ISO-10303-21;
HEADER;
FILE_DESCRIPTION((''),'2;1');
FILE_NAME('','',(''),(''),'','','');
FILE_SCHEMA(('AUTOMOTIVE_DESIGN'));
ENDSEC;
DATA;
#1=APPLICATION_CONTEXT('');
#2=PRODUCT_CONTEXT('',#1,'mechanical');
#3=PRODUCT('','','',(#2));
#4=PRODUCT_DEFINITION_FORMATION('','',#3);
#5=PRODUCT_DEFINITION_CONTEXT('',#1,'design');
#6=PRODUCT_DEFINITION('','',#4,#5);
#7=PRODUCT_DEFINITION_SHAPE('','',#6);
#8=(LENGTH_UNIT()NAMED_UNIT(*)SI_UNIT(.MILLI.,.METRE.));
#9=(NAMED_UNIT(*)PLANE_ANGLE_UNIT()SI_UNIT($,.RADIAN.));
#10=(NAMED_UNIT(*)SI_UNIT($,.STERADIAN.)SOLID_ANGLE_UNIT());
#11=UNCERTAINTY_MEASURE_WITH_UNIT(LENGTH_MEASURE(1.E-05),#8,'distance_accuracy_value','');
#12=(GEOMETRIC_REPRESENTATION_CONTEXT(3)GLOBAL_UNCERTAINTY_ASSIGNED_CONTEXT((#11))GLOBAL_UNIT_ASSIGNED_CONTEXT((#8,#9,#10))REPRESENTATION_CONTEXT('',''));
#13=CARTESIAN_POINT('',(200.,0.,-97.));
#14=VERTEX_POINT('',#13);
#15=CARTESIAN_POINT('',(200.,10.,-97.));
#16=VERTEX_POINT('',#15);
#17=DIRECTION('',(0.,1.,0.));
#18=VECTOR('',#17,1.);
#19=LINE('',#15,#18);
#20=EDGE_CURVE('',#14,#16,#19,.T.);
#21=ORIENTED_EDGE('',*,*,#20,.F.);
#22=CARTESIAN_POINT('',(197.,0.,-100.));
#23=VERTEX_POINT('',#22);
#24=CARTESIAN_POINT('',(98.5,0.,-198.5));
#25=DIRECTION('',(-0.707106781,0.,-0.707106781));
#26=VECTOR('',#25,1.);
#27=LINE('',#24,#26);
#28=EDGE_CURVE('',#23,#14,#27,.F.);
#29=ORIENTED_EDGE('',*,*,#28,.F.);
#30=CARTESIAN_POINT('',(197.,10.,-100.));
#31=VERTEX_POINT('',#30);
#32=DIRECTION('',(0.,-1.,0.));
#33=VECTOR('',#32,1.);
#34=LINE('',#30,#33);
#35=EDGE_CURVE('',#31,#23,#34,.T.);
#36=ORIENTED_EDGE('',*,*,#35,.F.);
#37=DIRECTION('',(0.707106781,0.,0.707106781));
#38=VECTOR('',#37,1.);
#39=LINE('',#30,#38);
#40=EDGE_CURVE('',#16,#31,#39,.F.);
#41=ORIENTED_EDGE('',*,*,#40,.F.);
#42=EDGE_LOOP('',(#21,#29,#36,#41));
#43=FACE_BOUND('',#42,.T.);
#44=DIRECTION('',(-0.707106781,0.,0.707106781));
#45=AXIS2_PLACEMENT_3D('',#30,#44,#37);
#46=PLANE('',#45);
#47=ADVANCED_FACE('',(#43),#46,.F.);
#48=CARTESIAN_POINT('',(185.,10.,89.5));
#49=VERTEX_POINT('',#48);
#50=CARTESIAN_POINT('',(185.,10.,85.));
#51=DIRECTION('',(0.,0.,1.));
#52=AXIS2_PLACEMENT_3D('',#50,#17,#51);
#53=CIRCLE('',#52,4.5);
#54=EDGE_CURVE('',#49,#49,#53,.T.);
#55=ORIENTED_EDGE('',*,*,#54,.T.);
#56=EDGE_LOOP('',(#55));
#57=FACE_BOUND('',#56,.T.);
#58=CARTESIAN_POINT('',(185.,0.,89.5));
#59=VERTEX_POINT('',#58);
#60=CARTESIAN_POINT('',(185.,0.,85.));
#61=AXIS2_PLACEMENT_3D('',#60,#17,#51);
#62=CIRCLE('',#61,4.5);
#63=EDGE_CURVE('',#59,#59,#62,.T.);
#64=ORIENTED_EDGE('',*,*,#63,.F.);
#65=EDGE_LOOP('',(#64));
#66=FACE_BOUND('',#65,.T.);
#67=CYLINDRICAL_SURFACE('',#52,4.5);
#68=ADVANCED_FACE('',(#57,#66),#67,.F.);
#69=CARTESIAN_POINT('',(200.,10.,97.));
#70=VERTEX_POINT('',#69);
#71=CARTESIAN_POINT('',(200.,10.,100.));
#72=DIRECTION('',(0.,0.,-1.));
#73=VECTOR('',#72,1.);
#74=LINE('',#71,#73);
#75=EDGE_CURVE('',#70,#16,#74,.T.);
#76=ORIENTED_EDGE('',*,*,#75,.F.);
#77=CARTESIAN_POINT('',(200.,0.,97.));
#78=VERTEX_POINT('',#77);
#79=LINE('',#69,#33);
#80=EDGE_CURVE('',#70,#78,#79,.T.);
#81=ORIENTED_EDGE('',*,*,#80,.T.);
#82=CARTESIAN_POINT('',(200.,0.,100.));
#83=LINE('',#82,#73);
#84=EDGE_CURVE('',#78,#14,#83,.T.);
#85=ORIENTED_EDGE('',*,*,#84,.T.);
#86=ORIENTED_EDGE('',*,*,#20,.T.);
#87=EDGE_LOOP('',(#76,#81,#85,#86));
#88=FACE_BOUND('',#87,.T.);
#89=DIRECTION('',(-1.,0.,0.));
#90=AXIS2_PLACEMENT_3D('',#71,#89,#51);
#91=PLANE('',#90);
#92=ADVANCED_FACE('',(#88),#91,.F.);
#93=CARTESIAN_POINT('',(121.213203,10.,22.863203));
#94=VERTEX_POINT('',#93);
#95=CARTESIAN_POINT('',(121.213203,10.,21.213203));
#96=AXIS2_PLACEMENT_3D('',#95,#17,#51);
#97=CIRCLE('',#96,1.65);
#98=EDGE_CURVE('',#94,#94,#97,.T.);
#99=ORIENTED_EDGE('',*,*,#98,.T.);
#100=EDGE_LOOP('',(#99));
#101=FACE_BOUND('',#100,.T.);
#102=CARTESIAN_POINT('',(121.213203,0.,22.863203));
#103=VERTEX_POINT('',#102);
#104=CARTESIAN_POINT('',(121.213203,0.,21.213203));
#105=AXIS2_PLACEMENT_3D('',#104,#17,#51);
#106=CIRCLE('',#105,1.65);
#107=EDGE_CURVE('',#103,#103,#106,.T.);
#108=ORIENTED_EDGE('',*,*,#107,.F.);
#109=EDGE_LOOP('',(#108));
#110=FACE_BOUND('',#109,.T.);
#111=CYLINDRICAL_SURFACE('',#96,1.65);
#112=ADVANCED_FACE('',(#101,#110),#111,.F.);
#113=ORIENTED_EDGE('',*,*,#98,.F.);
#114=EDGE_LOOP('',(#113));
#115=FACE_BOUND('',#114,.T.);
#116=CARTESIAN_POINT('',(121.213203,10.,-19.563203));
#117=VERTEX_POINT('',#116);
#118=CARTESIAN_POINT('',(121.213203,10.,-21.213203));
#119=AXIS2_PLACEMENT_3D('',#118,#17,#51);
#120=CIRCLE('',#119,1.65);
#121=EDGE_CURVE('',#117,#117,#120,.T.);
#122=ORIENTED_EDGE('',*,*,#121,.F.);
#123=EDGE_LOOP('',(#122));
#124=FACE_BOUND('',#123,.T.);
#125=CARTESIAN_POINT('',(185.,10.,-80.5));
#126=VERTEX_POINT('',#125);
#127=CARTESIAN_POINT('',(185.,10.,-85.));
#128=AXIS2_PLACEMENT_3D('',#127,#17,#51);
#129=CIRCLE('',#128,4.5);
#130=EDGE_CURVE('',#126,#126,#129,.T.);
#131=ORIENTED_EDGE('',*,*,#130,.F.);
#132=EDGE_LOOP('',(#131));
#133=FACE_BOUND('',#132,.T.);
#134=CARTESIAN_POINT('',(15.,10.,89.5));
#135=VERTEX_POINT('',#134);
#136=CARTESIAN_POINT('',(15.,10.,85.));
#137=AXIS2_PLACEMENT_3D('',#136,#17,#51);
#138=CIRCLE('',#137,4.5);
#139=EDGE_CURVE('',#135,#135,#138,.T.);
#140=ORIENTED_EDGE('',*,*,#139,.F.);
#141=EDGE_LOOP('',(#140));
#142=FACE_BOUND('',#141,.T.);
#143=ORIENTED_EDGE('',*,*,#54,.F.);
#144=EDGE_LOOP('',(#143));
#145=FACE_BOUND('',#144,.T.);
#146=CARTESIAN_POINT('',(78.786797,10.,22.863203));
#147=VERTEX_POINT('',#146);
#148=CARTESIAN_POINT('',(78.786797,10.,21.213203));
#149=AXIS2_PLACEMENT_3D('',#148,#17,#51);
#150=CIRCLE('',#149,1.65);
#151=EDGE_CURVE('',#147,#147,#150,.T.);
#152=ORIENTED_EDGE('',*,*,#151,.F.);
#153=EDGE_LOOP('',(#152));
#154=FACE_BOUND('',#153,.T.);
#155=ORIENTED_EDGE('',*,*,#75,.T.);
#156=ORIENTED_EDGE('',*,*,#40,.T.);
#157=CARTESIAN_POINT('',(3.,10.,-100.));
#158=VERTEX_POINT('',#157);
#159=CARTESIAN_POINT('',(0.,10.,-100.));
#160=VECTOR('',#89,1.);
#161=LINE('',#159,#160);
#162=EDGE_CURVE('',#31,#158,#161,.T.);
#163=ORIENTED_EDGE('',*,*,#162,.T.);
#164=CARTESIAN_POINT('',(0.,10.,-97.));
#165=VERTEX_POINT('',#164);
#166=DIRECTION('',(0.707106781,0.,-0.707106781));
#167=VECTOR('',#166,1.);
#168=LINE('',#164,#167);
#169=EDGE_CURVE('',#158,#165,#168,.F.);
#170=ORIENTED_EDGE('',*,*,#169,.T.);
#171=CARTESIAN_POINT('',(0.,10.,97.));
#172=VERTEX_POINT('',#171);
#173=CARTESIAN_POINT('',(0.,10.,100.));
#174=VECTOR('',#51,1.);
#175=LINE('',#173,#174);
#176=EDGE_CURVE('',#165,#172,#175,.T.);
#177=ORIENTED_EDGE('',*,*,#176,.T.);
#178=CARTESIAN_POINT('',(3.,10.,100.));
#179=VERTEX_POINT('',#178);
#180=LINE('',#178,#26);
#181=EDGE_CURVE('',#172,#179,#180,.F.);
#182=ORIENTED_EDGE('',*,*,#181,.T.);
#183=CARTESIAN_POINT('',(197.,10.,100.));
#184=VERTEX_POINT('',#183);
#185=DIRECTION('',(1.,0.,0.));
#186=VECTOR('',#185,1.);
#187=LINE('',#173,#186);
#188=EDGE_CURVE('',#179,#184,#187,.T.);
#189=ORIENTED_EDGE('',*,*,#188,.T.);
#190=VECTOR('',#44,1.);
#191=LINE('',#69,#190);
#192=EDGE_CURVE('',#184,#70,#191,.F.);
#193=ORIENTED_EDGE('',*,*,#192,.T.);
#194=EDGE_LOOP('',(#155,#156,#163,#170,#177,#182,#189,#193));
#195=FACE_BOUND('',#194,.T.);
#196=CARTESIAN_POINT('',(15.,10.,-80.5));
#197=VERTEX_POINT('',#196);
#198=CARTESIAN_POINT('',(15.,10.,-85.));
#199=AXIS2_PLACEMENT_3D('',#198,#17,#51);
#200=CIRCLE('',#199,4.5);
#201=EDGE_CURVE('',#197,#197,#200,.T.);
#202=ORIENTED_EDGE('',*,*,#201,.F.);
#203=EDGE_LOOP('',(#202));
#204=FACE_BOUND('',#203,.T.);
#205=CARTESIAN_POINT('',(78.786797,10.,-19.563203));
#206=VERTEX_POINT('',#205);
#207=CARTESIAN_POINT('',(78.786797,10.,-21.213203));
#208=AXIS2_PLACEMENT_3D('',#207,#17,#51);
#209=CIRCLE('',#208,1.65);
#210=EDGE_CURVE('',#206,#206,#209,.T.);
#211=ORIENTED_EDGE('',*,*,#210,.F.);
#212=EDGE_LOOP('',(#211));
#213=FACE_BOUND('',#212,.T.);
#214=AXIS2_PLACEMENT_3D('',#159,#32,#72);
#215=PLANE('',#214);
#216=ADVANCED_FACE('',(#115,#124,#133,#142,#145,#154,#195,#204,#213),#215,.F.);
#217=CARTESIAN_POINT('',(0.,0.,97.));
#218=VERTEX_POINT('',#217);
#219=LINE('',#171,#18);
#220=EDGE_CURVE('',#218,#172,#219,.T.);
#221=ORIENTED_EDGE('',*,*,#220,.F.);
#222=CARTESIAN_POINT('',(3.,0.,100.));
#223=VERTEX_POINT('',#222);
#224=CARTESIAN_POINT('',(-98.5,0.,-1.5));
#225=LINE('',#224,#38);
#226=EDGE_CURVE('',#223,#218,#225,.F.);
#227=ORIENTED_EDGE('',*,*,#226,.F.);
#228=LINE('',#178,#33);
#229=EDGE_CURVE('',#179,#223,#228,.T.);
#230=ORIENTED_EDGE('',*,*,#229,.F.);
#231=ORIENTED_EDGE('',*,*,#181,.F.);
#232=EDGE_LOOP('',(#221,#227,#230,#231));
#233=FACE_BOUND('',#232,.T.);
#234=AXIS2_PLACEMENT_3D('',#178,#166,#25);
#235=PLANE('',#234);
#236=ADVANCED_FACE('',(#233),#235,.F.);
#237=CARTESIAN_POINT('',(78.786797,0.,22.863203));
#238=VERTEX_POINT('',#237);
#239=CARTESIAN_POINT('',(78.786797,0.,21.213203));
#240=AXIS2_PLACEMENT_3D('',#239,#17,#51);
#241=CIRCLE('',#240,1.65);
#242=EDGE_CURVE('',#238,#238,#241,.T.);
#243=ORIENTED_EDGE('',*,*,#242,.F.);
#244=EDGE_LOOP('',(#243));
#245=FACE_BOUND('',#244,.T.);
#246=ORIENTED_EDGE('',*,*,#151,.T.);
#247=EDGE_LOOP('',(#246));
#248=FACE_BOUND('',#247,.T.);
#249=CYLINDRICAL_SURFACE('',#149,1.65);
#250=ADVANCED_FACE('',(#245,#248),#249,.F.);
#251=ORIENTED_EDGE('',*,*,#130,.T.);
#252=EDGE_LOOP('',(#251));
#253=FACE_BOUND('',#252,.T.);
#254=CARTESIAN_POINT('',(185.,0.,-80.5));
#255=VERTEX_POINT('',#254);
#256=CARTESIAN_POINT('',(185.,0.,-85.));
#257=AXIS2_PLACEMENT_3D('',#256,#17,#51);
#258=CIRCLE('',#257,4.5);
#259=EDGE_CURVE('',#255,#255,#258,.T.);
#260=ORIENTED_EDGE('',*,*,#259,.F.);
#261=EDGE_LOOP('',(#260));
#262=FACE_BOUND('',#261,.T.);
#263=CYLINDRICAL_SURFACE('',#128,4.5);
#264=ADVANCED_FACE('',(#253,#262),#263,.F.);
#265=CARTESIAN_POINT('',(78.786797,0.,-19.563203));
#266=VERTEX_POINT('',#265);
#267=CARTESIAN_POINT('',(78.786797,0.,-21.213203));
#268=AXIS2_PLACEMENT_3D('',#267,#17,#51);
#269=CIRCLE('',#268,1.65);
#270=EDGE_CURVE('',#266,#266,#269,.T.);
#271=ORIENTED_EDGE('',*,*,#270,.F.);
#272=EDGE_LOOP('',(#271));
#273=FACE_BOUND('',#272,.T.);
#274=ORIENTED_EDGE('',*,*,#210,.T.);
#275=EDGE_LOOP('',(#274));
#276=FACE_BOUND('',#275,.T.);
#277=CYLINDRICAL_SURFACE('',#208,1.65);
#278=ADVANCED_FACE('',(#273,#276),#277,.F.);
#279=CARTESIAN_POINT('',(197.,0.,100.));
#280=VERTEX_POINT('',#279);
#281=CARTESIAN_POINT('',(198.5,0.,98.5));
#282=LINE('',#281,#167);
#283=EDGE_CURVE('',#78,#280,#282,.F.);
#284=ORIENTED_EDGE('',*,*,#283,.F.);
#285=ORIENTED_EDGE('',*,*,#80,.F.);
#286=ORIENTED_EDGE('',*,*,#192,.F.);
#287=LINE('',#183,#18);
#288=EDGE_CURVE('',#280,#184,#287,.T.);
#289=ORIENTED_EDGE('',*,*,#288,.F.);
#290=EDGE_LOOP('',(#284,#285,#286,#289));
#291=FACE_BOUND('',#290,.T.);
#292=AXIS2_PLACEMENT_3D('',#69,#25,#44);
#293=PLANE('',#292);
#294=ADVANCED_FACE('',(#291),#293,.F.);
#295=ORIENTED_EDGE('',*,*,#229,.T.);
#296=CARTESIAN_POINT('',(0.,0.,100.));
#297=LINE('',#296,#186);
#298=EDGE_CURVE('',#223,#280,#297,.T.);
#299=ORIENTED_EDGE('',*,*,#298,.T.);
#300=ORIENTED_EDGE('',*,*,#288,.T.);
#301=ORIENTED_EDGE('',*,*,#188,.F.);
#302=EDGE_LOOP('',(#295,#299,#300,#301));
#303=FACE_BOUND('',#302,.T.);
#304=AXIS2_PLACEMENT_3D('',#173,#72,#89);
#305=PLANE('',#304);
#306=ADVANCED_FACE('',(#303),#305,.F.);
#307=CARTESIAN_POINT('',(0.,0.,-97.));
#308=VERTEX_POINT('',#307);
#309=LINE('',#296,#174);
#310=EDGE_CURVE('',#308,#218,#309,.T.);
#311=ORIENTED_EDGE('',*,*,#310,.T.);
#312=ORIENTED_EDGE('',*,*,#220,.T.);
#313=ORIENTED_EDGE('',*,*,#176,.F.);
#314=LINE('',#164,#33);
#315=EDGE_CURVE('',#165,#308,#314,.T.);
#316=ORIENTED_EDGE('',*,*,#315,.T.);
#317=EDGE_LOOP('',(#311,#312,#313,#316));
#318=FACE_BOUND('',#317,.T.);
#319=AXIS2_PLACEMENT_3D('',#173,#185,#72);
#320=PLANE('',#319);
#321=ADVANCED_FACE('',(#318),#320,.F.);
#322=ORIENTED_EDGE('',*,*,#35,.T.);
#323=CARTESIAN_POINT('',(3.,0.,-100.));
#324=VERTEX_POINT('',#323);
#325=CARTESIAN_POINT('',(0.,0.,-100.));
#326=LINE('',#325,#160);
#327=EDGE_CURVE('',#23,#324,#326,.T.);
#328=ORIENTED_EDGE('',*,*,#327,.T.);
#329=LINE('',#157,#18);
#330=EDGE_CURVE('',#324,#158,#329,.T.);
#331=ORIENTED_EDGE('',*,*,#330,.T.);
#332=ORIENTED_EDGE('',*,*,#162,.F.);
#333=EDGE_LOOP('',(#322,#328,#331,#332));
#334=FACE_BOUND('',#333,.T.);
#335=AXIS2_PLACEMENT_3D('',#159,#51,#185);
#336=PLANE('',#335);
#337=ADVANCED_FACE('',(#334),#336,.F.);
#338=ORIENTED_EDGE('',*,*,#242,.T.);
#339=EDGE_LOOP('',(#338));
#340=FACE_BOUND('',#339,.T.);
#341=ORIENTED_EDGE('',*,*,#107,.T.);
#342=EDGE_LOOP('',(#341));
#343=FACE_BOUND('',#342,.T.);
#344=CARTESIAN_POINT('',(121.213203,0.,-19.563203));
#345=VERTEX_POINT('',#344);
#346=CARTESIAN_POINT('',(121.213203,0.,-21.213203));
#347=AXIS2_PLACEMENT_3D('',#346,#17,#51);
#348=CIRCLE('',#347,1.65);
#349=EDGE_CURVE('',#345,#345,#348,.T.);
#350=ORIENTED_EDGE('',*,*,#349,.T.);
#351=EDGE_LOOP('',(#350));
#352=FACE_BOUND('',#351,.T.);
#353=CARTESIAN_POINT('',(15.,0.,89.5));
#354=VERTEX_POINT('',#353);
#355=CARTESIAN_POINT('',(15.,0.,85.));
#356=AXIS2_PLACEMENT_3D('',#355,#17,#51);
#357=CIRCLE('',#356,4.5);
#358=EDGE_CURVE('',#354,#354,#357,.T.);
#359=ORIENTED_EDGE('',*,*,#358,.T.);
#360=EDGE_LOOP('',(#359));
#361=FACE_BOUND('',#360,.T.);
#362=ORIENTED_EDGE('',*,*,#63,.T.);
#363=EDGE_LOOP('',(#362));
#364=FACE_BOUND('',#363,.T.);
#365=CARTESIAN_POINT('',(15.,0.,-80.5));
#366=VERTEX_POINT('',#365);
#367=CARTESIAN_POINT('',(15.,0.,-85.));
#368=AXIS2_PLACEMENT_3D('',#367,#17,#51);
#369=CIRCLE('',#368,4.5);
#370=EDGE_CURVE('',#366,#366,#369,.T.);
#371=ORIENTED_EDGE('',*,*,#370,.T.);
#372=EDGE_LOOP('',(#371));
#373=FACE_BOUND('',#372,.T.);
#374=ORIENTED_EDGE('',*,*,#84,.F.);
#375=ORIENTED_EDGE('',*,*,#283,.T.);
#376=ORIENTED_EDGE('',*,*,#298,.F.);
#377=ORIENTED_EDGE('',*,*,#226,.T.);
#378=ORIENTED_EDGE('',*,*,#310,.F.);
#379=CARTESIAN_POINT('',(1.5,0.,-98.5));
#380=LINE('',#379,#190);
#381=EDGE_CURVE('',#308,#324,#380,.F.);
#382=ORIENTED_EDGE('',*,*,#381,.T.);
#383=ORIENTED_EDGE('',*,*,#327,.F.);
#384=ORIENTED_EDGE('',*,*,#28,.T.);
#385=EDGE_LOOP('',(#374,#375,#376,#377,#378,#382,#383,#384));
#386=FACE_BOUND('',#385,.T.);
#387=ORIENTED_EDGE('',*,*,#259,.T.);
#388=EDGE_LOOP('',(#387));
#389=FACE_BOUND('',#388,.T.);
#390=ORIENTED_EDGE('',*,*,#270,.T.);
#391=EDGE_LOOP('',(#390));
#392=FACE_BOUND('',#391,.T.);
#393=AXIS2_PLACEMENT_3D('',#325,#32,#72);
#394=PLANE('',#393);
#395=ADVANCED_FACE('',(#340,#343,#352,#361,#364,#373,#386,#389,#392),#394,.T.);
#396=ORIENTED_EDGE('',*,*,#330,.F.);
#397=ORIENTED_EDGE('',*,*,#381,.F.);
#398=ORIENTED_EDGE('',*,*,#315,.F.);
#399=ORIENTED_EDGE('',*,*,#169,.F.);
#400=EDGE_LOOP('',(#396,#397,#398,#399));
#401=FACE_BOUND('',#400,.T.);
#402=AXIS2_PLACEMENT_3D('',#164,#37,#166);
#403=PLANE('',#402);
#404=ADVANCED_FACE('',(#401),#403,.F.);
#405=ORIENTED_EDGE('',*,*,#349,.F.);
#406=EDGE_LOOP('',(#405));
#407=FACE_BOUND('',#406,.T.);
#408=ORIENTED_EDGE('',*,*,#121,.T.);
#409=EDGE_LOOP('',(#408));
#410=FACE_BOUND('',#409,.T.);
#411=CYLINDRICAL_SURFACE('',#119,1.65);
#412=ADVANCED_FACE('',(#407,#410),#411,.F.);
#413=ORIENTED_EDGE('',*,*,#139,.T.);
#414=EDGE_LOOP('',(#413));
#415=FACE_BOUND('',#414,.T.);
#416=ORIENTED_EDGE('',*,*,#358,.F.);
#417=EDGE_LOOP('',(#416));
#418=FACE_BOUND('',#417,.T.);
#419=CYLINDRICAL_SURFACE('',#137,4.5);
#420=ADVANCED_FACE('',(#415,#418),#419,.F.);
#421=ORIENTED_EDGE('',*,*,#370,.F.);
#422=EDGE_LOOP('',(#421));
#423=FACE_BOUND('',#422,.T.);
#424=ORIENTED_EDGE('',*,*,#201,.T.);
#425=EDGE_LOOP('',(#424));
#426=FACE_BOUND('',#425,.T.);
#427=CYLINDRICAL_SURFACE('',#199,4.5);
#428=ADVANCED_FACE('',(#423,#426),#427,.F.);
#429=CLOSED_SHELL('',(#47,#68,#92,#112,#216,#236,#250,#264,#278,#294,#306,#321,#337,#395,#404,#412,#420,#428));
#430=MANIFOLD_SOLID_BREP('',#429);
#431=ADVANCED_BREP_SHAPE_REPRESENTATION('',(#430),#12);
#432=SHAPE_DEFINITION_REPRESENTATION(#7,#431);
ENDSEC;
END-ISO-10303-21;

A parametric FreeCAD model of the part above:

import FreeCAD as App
import Part
import Sketcher
from FreeCAD import Vector
Q = App.Units.Quantity


def edges_at(feature, points):
    """Names of the edges that pass closest to the given points."""
    edges = feature.Shape.Edges
    near = lambda p: min(range(len(edges)), key=lambda i: edges[i].distToShape(Part.Vertex(*p))[0])
    return sorted({f"Edge{near(p) + 1}" for p in points})

doc = App.newDocument("Part")
body = doc.addObject("PartDesign::Body", "Body")

# Sketch on XZ plane
sketch1 = body.newObject("Sketcher::SketchObject", "Sketch")
sketch1.AttachmentSupport = (doc.getObject("XZ_Plane"), [""])
sketch1.MapMode = "FlatFace"
sketch1.addGeometry(Part.LineSegment(Vector(0, -100, 0), Vector(0, 100, 0)), False)
sketch1.addGeometry(Part.LineSegment(Vector(0, 100, 0), Vector(200, 100, 0)), False)
sketch1.addGeometry(Part.LineSegment(Vector(200, 100, 0), Vector(200, -100, 0)), False)
sketch1.addGeometry(Part.LineSegment(Vector(200, -100, 0), Vector(0, -100, 0)), False)
sketch1.addConstraint(Sketcher.Constraint("Coincident", 0, 2, 1, 1))
sketch1.addConstraint(Sketcher.Constraint("Coincident", 1, 2, 2, 1))
sketch1.addConstraint(Sketcher.Constraint("Coincident", 2, 2, 3, 1))
sketch1.addConstraint(Sketcher.Constraint("Coincident", 3, 2, 0, 1))
sketch1.addConstraint(Sketcher.Constraint("Vertical", 0))
sketch1.addConstraint(Sketcher.Constraint("Horizontal", 1))
sketch1.addConstraint(Sketcher.Constraint("Vertical", 2))
sketch1.addConstraint(Sketcher.Constraint("Horizontal", 3))
sketch1.addConstraint(Sketcher.Constraint("Symmetric", 0, 2, 3, 2, -1, 1))
sketch1.addConstraint(Sketcher.Constraint("Equal", 3, 0))
sketch1.addConstraint(Sketcher.Constraint("DistanceX", 1, 1, 1, 2, Q("200 mm")))
pad1 = body.newObject("PartDesign::Pad", "Pad")
pad1.Profile = sketch1
pad1.Length = 10
pad1.Reversed = True

# Sketch on XZ plane
sketch2 = body.newObject("Sketcher::SketchObject", "Sketch001")
sketch2.AttachmentSupport = (doc.getObject("XZ_Plane"), [""])
sketch2.MapMode = "FlatFace"
sketch2.AttachmentOffset = App.Placement(Vector(0, 0, -10), App.Rotation())
sketch2.addGeometry(Part.Circle(Vector(15, 85, 0), Vector(0, 0, 1), 4.5), False)
sketch2.addGeometry(Part.Circle(Vector(15, -85, 0), Vector(0, 0, 1), 4.5), False)
sketch2.addGeometry(Part.Circle(Vector(185, -85, 0), Vector(0, 0, 1), 4.5), False)
sketch2.addGeometry(Part.Circle(Vector(185, 85, 0), Vector(0, 0, 1), 4.5), False)
sketch2.addConstraint(Sketcher.Constraint("Equal", 0, 1))
sketch2.addConstraint(Sketcher.Constraint("Equal", 1, 2))
sketch2.addConstraint(Sketcher.Constraint("Equal", 2, 3))
sketch2.addConstraint(Sketcher.Constraint("Symmetric", 0, 3, 1, 3, -1))
sketch2.addConstraint(Sketcher.Constraint("Symmetric", 2, 3, 3, 3, -1))
sketch2.addConstraint(Sketcher.Constraint("Horizontal", 1, 3, 2, 3))
sketch2.addConstraint(Sketcher.Constraint("Diameter", 0, Q("9 mm")))
sketch2.addConstraint(Sketcher.Constraint("DistanceX", -1, 1, 0, 3, Q("15 mm")))
sketch2.addConstraint(Sketcher.Constraint("DistanceY", -1, 1, 0, 3, Q("85 mm")))
sketch2.addConstraint(Sketcher.Constraint("DistanceX", -1, 1, 2, 3, Q("185 mm")))
doc.recompute()
hole = body.newObject("PartDesign::Hole", "Hole")
hole.Profile = sketch2
hole.ThreadType = "None"
hole.Diameter = 9
hole.DepthType = "ThroughAll"
hole.Reversed = True

# Sketch on XZ plane
sketch3 = body.newObject("Sketcher::SketchObject", "Sketch002")
sketch3.AttachmentSupport = (doc.getObject("XZ_Plane"), [""])
sketch3.MapMode = "FlatFace"
sketch3.AttachmentOffset = App.Placement(Vector(0, 0, -10), App.Rotation())
sketch3.addGeometry(Part.Circle(Vector(78.8, 21.2, 0), Vector(0, 0, 1), 1.6), False)
sketch3.addGeometry(Part.Circle(Vector(121.2, 21.2, 0), Vector(0, 0, 1), 1.6), False)
sketch3.addGeometry(Part.Circle(Vector(121.2, -21.2, 0), Vector(0, 0, 1), 1.6), False)
sketch3.addGeometry(Part.Circle(Vector(78.8, -21.2, 0), Vector(0, 0, 1), 1.6), False)
sketch3.addConstraint(Sketcher.Constraint("Equal", 0, 1))
sketch3.addConstraint(Sketcher.Constraint("Equal", 1, 2))
sketch3.addConstraint(Sketcher.Constraint("Equal", 2, 3))
sketch3.addConstraint(Sketcher.Constraint("Symmetric", 1, 3, 2, 3, -1))
sketch3.addConstraint(Sketcher.Constraint("Symmetric", 0, 3, 3, 3, -1))
sketch3.addConstraint(Sketcher.Constraint("Horizontal", 0, 3, 1, 3))
sketch3.addConstraint(Sketcher.Constraint("Diameter", 0, Q("3.3 mm")))
sketch3.addConstraint(Sketcher.Constraint("DistanceX", -1, 1, 0, 3, Q("78.786797 mm")))
sketch3.addConstraint(Sketcher.Constraint("DistanceY", -1, 1, 0, 3, Q("21.213203 mm")))
sketch3.addConstraint(Sketcher.Constraint("DistanceX", -1, 1, 1, 3, Q("121.213203 mm")))
doc.recompute()
hole2 = body.newObject("PartDesign::Hole", "Hole001")
hole2.Profile = sketch3
hole2.ThreadType = "None"
hole2.Diameter = 3.3
hole2.DepthType = "ThroughAll"
hole2.Reversed = True
doc.recompute()

chamfer = body.newObject("PartDesign::Chamfer", "Chamfer")
chamfer.Base = (hole2, edges_at(hole2, [
    (0, 5, -100),
    (200, 5, -100),
    (200, 5, 100),
    (0, 5, 100),
]))
chamfer.Size = 3

doc.recompute()
